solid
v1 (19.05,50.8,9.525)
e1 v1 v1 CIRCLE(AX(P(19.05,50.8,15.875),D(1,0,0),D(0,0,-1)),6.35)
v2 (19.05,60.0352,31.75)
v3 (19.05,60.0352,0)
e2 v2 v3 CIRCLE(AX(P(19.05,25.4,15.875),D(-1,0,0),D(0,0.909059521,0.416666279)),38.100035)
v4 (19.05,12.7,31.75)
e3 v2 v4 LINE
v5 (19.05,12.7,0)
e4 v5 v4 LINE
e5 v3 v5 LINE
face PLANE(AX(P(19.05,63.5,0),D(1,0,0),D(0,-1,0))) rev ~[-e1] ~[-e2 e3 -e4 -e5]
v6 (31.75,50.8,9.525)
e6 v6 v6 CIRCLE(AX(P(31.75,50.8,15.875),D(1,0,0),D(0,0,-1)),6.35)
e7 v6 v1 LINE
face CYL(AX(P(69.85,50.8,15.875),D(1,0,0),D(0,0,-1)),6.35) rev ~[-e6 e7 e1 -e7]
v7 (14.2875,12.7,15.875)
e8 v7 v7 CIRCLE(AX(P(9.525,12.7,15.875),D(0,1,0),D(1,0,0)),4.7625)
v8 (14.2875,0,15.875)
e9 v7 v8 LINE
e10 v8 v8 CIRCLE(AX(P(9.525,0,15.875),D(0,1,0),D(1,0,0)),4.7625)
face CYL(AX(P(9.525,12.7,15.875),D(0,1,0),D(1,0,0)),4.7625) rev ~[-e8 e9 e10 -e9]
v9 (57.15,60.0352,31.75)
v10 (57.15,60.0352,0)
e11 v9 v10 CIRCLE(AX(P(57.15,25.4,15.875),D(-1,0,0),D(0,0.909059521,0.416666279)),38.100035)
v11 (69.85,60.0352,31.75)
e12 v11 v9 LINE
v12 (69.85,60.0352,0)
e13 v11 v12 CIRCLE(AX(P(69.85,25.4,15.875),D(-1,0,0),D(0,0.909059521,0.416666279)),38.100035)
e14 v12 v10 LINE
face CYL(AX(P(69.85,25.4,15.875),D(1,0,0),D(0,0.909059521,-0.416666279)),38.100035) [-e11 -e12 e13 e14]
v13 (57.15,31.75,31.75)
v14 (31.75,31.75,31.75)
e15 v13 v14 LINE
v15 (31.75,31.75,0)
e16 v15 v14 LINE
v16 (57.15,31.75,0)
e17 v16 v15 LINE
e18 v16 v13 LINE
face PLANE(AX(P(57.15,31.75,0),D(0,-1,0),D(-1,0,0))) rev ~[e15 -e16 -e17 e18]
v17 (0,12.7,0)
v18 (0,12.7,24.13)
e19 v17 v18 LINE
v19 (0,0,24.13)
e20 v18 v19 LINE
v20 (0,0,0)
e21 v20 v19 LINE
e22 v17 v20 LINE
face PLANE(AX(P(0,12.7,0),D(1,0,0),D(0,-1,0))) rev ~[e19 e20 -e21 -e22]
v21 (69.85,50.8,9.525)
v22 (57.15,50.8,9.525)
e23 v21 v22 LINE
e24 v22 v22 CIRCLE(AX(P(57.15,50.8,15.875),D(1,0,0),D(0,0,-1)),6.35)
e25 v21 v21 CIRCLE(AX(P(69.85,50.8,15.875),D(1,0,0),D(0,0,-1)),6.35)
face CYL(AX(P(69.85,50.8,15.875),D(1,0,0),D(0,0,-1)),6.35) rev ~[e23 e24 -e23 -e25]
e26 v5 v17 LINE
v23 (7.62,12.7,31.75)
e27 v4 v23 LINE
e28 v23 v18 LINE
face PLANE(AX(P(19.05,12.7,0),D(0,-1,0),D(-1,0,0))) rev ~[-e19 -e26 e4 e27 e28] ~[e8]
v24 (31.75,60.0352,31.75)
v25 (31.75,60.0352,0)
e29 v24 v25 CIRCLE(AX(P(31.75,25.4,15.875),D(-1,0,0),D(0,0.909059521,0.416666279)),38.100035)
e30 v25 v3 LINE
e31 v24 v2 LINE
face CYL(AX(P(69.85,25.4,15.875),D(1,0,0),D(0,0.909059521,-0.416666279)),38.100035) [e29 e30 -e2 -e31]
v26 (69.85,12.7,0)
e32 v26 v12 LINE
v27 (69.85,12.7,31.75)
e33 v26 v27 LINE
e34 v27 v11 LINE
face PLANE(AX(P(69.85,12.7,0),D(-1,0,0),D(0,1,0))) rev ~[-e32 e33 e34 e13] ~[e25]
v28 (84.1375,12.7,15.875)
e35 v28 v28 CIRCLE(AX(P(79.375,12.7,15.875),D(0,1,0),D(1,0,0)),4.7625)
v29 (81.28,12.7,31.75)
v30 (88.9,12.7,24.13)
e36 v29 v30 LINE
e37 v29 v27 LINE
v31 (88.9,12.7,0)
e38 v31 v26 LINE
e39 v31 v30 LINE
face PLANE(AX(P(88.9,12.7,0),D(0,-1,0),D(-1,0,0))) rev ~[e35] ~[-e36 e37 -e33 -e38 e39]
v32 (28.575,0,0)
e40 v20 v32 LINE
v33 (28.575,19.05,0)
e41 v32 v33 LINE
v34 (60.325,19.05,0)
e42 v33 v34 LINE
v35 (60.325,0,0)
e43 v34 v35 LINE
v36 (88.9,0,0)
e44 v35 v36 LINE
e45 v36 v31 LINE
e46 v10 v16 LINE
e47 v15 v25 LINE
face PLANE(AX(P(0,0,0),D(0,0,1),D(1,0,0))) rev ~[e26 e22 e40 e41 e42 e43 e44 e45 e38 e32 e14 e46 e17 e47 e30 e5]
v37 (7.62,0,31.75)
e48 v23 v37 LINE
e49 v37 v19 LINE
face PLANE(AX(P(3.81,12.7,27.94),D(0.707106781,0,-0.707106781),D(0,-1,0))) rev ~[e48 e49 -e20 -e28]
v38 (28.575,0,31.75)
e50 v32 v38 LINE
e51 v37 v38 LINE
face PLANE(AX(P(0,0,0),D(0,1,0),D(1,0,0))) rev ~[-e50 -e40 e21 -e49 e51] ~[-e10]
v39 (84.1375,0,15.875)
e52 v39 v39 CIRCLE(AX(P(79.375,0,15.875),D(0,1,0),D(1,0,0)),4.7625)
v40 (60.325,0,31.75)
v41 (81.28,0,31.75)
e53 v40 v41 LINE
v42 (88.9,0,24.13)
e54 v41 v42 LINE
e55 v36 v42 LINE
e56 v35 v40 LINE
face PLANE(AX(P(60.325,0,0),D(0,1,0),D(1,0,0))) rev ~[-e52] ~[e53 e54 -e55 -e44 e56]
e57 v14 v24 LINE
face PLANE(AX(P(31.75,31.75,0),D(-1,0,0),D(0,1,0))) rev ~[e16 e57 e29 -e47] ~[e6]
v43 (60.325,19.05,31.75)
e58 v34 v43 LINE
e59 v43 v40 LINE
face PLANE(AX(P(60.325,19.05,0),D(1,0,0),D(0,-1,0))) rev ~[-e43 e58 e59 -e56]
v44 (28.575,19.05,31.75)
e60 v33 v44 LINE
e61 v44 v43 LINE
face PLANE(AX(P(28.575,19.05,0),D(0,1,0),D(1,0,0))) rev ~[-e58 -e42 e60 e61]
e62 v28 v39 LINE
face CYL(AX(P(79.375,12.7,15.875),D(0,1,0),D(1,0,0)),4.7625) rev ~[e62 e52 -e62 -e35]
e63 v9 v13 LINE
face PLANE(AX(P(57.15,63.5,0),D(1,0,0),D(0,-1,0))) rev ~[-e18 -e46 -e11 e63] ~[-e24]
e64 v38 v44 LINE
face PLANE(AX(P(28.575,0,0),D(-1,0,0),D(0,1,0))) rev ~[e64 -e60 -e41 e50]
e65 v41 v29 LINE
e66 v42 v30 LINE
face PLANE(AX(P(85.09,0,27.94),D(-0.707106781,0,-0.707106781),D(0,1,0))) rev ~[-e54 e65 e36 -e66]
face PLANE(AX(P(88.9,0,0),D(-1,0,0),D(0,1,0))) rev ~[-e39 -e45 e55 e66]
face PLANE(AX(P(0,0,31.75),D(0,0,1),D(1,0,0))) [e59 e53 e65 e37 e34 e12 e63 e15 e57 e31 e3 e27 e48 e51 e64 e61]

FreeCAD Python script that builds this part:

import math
import FreeCAD as App
import Part
import Sketcher
Q = App.Units.Quantity


def edges_at(feature, points):
    """Names of the edges that pass closest to the given points."""
    edges = feature.Shape.Edges
    near = lambda p: min(range(len(edges)), key=lambda i: edges[i].distToShape(Part.Vertex(*p))[0])
    return sorted({f"Edge{near(p) + 1}" for p in points})


def add_polygon(sketch, points):
    """Adds a closed chain of lines whose ends are joined by coincident constraints."""
    first, n = sketch.GeometryCount, len(points)
    for a, b in zip(points, points[1:] + points[:1]):
        sketch.addGeometry(Part.LineSegment(App.Vector(*a, 0), App.Vector(*b, 0)), False)
    for i in range(n):
        sketch.addConstraint(Sketcher.Constraint("Coincident", first + i, 2, first + (i + 1) % n, 1))

doc = App.newDocument("Part")
body = doc.addObject("PartDesign::Body", "Body")

# Sketch on XY plane
sketch1 = body.newObject("Sketcher::SketchObject", "Sketch")
sketch1.AttachmentSupport = (doc.getObject("XY_Plane"), [""])
sketch1.MapMode = "FlatFace"
add_polygon(sketch1, [(0, 13), (0, 0), (29, 0), (29, 19), (60, 19), (60, 0), (89, 0), (89, 13), (70, 13), (70, 64), (57, 64), (57, 32), (32, 32), (32, 64), (19, 64), (19, 13)])  # lines 0-15
sketch1.addConstraint([
    Sketcher.Constraint("Vertical", 0),
    Sketcher.Constraint("Horizontal", 1),
    Sketcher.Constraint("Vertical", 2),
    Sketcher.Constraint("Horizontal", 3),
    Sketcher.Constraint("Vertical", 4),
    Sketcher.Constraint("Horizontal", 5),
    Sketcher.Constraint("Vertical", 6),
    Sketcher.Constraint("Horizontal", 7),
    Sketcher.Constraint("Vertical", 8),
    Sketcher.Constraint("Horizontal", 9),
    Sketcher.Constraint("Vertical", 10),
    Sketcher.Constraint("Horizontal", 11),
    Sketcher.Constraint("Vertical", 12),
    Sketcher.Constraint("Horizontal", 13),
    Sketcher.Constraint("Vertical", 14),
    Sketcher.Constraint("Horizontal", 15),
    Sketcher.Constraint("Coincident", 0, 2, -1, 1),
    Sketcher.Constraint("PointOnObject", 4, 2, -1),
    Sketcher.Constraint("Horizontal", 9, 2, 12, 2),
    Sketcher.Constraint("Horizontal", 7, 2, 14, 2),
    Sketcher.Constraint("Equal", 1, 5),
    Sketcher.Constraint("Equal", 9, 13),
    Sketcher.Constraint("Equal", 7, 15),
    Sketcher.Constraint("Equal", 13, 0),
    Sketcher.Constraint("Equal", 15, 2),
    Sketcher.Constraint("Equal", 3, 10),
    Sketcher.Constraint("DistanceX", 11, 2, 11, 1, Q("1 in")),
    Sketcher.Constraint("DistanceY", 8, 1, 8, 2, Q("2 in")),
    Sketcher.Constraint("DistanceX", 9, 2, 9, 1, Q("0.5 in")),
    Sketcher.Constraint("DistanceX", 3, 1, 3, 2, Q("1.25 in")),
    Sketcher.Constraint("DistanceX", 7, 2, 7, 1, Q("0.75 in")),
])
pad1 = body.newObject("PartDesign::Pad", "Pad")
pad1.Profile = sketch1
pad1.Length = Q("1.25 in")

# Sketch on YZ plane
sketch2 = body.newObject("Sketcher::SketchObject", "Sketch001")
sketch2.AttachmentSupport = (doc.getObject("YZ_Plane"), [""])
sketch2.MapMode = "FlatFace"
sketch2.AttachmentOffset = App.Placement(App.Vector(0, 0, 2.75 * 25.4), App.Rotation())
sketch2.addGeometry([
    Part.LineSegment(App.Vector(60, 0, 0), App.Vector(63.8, 0, 0)),
    Part.LineSegment(App.Vector(63.8, 0, 0), App.Vector(63.8, 31.8, 0)),
    Part.LineSegment(App.Vector(63.8, 31.8, 0), App.Vector(60, 31.8, 0)),
    Part.ArcOfCircle(Part.Circle(App.Vector(25.4, 15.9, 0), App.Vector(0, 0, 1), 38.1), math.radians(-25), math.radians(25)),
], False)
sketch2.addConstraint([
    Sketcher.Constraint("Coincident", 0, 2, 1, 1),
    Sketcher.Constraint("Coincident", 1, 2, 2, 1),
    Sketcher.Constraint("Coincident", 2, 2, 3, 2),
    Sketcher.Constraint("Coincident", 3, 1, 0, 1),
    Sketcher.Constraint("Horizontal", 0),
    Sketcher.Constraint("Vertical", 1),
    Sketcher.Constraint("Horizontal", 2),
    Sketcher.Constraint("PointOnObject", 0, 2, -1),
    Sketcher.Constraint("Vertical", 2, 2, 3, 1),
    Sketcher.Constraint("Radius", 3, Q("1.5 in")),
    Sketcher.Constraint("DistanceX", -1, 1, 3, 3, Q("1 in")),
    Sketcher.Constraint("DistanceY", 1, 1, 1, 2, Q("1.25 in")),
    Sketcher.Constraint("DistanceX", 0, 1, 0, 2, Q("3.7375 mm")),
])
pocket1 = body.newObject("PartDesign::Pocket", "Pocket")
pocket1.Profile = sketch2
pocket1.Type = "ThroughAll"

# Sketch on YZ plane
sketch3 = body.newObject("Sketcher::SketchObject", "Sketch002")
sketch3.AttachmentSupport = (doc.getObject("YZ_Plane"), [""])
sketch3.MapMode = "FlatFace"
sketch3.AttachmentOffset = App.Placement(App.Vector(0, 0, 2.75 * 25.4), App.Rotation())
sketch3.addGeometry(Part.Circle(App.Vector(51, 16, 0), App.Vector(0, 0, 1), 6), False)
sketch3.addConstraint([
    Sketcher.Constraint("Diameter", 0, Q("0.5 in")),
    Sketcher.Constraint("DistanceX", -1, 1, 0, 3, Q("2 in")),
    Sketcher.Constraint("DistanceY", -1, 1, 0, 3, Q("0.625 in")),
])
pocket2 = body.newObject("PartDesign::Pocket", "Pocket001")
pocket2.Profile = sketch3
pocket2.Type = "ThroughAll"
doc.recompute()

chamfer = body.newObject("PartDesign::Chamfer", "Chamfer")
chamfer.Base = (pocket2, edges_at(pocket2, [(88.9, 6.35, 31.75)]))
chamfer.Size = Q("0.3 in")
doc.recompute()

chamfer2 = body.newObject("PartDesign::Chamfer", "Chamfer001")
chamfer2.Base = (chamfer, edges_at(chamfer, [(0, 6.35, 31.75)]))
chamfer2.Size = Q("0.3 in")

# Sketch on XZ plane
sketch4 = body.newObject("Sketcher::SketchObject", "Sketch003")
sketch4.AttachmentSupport = (doc.getObject("XZ_Plane"), [""])
sketch4.MapMode = "FlatFace"
sketch4.AttachmentOffset = App.Placement(App.Vector(0, 0, -0.5 * 25.4), App.Rotation())
sketch4.addGeometry([
    Part.Circle(App.Vector(79.4, 15.9, 0), App.Vector(0, 0, 1), 4.8),
    Part.Circle(App.Vector(9.5, 15.9, 0), App.Vector(0, 0, 1), 4.8),
], False)
sketch4.addConstraint([
    Sketcher.Constraint("Equal", 0, 1),
    Sketcher.Constraint("Horizontal", 0, 3, 1, 3),
    Sketcher.Constraint("Diameter", 0, Q("0.375 in")),
    Sketcher.Constraint("DistanceY", -1, 1, 0, 3, Q("0.625 in")),
    Sketcher.Constraint("DistanceX", -1, 1, 1, 3, Q("0.375 in")),
    Sketcher.Constraint("DistanceX", 1, 3, 0, 3, Q("2.75 in")),
])
pocket3 = body.newObject("PartDesign::Pocket", "Pocket002")
pocket3.Profile = sketch4
pocket3.Type = "ThroughAll"
pocket3.Reversed = True

doc.recompute()
